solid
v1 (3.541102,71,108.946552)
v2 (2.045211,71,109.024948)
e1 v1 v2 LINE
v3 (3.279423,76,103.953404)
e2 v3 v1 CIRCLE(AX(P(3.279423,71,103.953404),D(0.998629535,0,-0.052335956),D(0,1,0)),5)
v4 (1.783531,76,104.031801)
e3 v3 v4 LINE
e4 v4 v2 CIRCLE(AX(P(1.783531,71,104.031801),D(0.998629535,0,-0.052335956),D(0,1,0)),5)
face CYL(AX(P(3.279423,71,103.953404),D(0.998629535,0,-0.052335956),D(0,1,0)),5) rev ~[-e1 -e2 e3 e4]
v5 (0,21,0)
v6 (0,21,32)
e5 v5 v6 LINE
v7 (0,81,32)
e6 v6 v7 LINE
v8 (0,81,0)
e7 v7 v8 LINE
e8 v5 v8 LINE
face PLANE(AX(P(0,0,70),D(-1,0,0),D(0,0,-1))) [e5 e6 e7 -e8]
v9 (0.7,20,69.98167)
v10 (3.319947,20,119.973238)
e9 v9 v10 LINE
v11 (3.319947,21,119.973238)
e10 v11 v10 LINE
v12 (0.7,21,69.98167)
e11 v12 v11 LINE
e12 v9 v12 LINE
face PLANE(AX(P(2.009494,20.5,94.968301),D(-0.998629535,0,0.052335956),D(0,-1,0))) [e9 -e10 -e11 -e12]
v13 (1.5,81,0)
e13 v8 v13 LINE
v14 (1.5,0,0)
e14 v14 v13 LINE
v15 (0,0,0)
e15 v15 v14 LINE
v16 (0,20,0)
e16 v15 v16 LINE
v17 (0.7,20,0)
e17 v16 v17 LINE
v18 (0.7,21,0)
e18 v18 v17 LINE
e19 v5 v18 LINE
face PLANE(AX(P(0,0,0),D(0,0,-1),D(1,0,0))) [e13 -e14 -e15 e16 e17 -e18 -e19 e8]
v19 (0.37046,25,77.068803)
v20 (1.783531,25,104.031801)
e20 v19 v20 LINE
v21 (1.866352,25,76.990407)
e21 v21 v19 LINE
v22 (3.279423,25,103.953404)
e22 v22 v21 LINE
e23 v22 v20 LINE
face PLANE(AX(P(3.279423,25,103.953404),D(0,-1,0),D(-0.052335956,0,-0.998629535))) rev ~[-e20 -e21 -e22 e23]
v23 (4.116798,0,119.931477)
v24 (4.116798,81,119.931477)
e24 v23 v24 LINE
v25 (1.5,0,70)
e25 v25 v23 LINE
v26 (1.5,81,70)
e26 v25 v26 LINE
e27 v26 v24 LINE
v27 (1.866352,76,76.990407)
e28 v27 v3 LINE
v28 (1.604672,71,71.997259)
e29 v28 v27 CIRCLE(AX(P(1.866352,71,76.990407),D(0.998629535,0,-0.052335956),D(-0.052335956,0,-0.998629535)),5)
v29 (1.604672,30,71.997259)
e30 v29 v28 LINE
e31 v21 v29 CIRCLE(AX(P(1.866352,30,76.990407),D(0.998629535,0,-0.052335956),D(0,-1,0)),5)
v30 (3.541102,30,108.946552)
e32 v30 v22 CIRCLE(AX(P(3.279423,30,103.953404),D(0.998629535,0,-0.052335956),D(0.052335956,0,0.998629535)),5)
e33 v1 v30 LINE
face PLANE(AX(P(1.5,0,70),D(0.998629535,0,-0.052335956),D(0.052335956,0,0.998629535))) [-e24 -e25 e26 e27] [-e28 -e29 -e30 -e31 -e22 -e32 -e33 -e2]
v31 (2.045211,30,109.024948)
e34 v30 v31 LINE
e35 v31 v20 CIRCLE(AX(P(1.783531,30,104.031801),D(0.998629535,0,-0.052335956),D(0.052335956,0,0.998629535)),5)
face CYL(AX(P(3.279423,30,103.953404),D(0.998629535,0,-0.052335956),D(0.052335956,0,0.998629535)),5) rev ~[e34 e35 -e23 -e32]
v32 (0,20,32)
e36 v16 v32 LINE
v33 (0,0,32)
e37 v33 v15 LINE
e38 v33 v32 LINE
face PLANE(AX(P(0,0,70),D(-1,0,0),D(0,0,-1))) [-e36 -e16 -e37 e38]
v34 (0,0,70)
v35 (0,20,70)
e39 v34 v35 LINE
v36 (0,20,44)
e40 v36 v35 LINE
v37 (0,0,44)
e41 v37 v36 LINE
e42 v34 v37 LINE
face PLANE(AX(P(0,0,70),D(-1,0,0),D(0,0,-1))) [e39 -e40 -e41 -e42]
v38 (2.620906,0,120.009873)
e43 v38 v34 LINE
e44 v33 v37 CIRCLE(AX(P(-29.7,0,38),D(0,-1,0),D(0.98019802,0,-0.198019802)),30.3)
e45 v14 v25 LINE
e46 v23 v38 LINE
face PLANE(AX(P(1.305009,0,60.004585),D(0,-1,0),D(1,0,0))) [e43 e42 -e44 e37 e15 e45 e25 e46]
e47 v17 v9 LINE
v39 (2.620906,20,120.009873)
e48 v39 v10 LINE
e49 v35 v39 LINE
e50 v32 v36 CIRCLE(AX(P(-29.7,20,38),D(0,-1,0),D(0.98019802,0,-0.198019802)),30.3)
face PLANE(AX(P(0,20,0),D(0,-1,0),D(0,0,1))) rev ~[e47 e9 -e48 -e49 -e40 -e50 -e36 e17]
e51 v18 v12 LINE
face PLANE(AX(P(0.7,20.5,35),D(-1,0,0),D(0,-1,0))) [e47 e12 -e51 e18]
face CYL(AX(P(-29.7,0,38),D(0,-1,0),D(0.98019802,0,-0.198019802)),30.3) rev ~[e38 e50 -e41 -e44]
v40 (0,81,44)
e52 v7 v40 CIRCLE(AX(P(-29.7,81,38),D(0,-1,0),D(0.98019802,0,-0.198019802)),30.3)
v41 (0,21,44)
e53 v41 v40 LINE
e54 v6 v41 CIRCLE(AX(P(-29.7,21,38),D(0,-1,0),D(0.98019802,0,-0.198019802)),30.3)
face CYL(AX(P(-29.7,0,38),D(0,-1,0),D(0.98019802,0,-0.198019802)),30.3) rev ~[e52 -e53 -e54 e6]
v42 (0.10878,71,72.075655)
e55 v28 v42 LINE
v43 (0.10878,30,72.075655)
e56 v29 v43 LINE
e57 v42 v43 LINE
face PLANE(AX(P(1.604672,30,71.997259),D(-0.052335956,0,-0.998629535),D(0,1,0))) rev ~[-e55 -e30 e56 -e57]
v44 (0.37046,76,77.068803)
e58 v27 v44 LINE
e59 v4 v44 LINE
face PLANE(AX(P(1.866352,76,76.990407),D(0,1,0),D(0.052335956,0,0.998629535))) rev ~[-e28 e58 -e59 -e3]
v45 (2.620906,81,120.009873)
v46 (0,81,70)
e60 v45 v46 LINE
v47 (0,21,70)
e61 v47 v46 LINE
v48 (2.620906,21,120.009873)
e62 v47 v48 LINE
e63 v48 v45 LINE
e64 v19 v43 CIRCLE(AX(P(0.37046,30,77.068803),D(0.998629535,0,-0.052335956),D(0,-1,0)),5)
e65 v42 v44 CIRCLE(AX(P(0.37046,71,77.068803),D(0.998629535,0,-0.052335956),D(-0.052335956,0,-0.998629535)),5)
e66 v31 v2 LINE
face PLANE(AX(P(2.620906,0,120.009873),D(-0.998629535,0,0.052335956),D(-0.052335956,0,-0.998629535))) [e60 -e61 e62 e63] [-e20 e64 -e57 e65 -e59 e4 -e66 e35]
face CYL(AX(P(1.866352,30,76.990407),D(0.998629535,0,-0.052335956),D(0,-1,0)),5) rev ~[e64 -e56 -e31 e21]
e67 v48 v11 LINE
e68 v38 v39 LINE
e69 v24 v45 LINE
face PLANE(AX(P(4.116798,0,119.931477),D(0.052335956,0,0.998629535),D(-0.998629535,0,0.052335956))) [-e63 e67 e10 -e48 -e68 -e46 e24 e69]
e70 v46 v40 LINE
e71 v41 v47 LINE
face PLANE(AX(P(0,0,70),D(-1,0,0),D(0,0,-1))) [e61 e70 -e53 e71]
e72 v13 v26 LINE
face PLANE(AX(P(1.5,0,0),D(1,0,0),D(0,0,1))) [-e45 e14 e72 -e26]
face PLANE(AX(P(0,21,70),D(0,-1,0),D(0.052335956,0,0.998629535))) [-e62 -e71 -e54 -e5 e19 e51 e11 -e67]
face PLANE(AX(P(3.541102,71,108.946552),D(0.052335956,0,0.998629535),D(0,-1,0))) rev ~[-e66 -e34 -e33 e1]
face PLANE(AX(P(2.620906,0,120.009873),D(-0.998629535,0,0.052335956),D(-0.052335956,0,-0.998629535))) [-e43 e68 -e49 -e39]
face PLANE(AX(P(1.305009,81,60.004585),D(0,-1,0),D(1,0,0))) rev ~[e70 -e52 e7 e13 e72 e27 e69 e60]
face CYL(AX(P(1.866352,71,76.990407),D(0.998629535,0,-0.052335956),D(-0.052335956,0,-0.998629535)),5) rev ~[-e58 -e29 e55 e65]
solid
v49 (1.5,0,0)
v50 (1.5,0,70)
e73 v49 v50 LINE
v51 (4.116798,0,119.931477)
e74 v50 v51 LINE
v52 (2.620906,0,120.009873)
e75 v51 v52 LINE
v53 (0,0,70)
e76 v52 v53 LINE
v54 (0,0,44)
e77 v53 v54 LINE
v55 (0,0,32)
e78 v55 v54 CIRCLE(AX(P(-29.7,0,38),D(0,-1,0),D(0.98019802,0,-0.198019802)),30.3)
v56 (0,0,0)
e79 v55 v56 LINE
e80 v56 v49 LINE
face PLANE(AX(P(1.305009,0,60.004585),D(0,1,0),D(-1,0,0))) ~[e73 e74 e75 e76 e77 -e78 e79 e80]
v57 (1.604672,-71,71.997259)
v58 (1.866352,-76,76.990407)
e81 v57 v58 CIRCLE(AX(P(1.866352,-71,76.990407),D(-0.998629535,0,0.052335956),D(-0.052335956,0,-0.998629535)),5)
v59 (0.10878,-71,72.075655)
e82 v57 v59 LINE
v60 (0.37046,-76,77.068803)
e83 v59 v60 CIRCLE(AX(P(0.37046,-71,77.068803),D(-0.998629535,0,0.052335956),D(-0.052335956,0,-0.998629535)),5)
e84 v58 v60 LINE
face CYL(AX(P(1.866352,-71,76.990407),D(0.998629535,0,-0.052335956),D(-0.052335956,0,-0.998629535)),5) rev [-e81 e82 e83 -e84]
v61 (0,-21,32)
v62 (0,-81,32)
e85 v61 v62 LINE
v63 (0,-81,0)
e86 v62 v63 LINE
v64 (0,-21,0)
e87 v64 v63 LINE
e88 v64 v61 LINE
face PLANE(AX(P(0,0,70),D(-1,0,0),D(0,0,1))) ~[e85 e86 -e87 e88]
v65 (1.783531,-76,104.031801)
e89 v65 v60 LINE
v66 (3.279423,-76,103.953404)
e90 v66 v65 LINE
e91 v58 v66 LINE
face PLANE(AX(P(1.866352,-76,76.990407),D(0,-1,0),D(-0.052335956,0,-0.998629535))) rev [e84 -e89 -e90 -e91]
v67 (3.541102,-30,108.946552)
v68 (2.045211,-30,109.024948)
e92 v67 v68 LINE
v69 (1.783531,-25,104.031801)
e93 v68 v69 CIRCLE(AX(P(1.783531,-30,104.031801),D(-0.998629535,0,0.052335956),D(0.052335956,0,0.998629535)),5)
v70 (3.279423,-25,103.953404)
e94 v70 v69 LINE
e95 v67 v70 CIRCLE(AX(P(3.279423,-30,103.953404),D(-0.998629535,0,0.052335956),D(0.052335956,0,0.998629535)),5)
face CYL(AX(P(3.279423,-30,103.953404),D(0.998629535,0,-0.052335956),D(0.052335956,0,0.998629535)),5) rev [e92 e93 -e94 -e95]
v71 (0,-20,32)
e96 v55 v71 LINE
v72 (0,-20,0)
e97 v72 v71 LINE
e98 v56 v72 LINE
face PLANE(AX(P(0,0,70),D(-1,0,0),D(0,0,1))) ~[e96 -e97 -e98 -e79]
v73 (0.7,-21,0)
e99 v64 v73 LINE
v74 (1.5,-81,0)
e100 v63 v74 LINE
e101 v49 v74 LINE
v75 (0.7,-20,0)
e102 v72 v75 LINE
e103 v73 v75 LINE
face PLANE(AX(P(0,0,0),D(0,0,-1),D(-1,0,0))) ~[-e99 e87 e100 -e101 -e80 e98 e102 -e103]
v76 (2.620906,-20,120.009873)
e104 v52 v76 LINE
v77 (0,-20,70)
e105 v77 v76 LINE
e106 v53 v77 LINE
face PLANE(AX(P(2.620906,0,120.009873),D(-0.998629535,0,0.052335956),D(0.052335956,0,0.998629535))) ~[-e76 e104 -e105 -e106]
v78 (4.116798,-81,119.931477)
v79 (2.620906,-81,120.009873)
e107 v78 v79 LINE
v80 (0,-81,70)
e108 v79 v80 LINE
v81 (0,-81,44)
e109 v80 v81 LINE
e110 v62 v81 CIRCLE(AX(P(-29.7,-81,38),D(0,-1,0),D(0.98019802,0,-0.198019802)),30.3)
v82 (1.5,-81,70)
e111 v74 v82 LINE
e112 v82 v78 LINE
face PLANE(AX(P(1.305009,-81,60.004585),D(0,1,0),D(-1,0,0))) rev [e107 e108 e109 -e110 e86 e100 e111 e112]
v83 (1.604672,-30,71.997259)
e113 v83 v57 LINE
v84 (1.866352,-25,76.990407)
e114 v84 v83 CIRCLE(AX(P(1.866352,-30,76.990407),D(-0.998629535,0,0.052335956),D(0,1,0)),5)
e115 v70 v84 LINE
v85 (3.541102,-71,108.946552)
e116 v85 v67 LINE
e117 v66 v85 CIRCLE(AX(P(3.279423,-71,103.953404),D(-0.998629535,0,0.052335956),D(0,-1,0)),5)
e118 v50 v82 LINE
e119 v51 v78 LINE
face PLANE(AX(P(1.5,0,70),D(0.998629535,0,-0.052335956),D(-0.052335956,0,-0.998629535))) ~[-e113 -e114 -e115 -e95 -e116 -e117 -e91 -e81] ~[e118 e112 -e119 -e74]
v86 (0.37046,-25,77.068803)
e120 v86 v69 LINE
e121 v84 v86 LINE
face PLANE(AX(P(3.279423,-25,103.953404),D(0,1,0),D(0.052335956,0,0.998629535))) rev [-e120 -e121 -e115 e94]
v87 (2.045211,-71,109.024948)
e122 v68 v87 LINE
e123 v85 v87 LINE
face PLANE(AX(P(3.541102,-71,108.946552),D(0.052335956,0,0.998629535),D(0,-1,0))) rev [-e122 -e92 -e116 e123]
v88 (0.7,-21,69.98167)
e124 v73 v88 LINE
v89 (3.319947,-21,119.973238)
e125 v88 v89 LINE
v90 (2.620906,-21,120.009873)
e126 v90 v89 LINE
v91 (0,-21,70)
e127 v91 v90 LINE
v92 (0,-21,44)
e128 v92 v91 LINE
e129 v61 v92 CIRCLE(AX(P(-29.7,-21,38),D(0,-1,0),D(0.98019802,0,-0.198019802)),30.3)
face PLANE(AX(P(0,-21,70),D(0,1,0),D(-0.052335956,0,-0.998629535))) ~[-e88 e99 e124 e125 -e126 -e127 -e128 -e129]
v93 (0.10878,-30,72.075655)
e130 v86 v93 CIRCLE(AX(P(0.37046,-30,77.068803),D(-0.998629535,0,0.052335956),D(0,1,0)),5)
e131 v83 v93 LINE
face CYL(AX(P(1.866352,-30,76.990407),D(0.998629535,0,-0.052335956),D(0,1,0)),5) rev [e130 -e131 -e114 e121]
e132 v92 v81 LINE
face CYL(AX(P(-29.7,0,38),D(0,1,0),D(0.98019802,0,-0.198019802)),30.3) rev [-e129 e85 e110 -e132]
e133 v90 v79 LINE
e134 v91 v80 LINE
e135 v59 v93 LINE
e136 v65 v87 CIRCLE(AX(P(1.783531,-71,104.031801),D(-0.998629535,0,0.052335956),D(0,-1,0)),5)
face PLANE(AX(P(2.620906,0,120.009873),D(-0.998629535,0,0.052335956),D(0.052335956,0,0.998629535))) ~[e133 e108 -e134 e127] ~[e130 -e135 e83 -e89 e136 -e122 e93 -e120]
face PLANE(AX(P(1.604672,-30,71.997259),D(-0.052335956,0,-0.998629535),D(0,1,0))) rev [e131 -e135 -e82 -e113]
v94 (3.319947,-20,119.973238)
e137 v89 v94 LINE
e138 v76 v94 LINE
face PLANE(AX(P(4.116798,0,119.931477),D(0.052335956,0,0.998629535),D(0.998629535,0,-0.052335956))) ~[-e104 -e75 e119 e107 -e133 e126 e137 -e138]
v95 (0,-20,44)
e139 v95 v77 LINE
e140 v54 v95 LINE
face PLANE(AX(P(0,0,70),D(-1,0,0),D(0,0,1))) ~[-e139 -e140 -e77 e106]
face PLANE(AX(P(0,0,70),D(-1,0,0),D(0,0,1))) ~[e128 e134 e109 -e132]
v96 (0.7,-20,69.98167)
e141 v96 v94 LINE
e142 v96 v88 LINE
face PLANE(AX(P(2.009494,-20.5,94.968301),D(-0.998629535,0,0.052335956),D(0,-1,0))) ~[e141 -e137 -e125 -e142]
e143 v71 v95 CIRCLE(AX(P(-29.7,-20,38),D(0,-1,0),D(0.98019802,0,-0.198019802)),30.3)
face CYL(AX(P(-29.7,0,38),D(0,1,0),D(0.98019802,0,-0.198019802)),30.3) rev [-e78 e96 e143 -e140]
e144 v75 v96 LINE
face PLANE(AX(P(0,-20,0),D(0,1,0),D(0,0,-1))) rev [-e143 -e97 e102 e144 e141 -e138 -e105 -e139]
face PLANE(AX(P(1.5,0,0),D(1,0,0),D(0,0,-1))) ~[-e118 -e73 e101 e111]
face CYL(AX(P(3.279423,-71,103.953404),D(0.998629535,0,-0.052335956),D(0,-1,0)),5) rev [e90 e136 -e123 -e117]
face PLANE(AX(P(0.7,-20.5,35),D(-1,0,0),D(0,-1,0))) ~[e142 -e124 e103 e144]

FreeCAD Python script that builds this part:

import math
import FreeCAD as App
import Part
import Sketcher
from FreeCAD import Vector
Q = App.Units.Quantity

doc = App.newDocument("Part")
body = doc.addObject("PartDesign::Body", "Body")

sketch1 = body.newObject("Sketcher::SketchObject", "Sketch")
sketch1.AttachmentSupport = (doc.getObject("XZ_Plane"), [""])
sketch1.MapMode = "FlatFace"
sketch1.addGeometry([
    Part.LineSegment(Vector(0, 70, 0), Vector(0, 0, 0)),
    Part.LineSegment(Vector(0, 0, 0), Vector(1.5, 0, 0)),
    Part.LineSegment(Vector(1.5, 0, 0), Vector(1.5, 70, 0)),
    Part.LineSegment(Vector(1.5, 70, 0), Vector(4.1, 119.9, 0)),
    Part.LineSegment(Vector(4.1, 119.9, 0), Vector(2.6, 120, 0)),
    Part.LineSegment(Vector(2.6, 120, 0), Vector(0, 70, 0)),
], False)
sketch1.addConstraint([
    Sketcher.Constraint("Coincident", 0, 2, 1, 1),
    Sketcher.Constraint("Coincident", 1, 2, 2, 1),
    Sketcher.Constraint("Coincident", 2, 2, 3, 1),
    Sketcher.Constraint("Coincident", 3, 2, 4, 1),
    Sketcher.Constraint("Coincident", 4, 2, 5, 1),
    Sketcher.Constraint("Coincident", 5, 2, 0, 1),
    Sketcher.Constraint("Vertical", 0),
    Sketcher.Constraint("Horizontal", 1),
    Sketcher.Constraint("Vertical", 2),
    Sketcher.Constraint("Coincident", 0, 2, -1, 1),
    Sketcher.Constraint("Perpendicular", 3, 4),
    Sketcher.Constraint("Perpendicular", 4, 5),
    Sketcher.Constraint("Horizontal", 2, 2, 5, 2),
    Sketcher.Constraint("DistanceY", 0, 2, 0, 1, 70.0),
    Sketcher.Constraint("Angle", 3, Q("87 deg")),
    Sketcher.Constraint("Distance", 3, 50.0),
    Sketcher.Constraint("DistanceX", 1, 1, 1, 2, 1.5),
])
pad1 = body.newObject("PartDesign::Pad", "Pad")
pad1.Profile = sketch1
pad1.Length = 81
pad1.Reversed = True

sketch2 = body.newObject("Sketcher::SketchObject", "Sketch001")
sketch2.Placement = App.Placement(Vector(-2.162605, 0, 0.113337), App.Rotation(Vector(0, 1, 0), Vector(0.052335956, 0, 0.998629535), Vector(0.998629535, 0, -0.052335956), "ZXY"))
sketch2.addGeometry([
    Part.LineSegment(Vector(71, 109, 0), Vector(30, 109, 0)),
    Part.ArcOfCircle(Part.Circle(Vector(30, 104, 0), Vector(0, 0, 1), 5), math.radians(90), math.radians(180)),
    Part.LineSegment(Vector(25, 104, 0), Vector(25, 77, 0)),
    Part.ArcOfCircle(Part.Circle(Vector(30, 77, 0), Vector(0, 0, 1), 5), math.radians(180), math.radians(270)),
    Part.LineSegment(Vector(30, 72, 0), Vector(71, 72, 0)),
    Part.ArcOfCircle(Part.Circle(Vector(71, 77, 0), Vector(0, 0, 1), 5), math.radians(-90), math.radians(0)),
    Part.LineSegment(Vector(76, 77, 0), Vector(76, 104, 0)),
    Part.ArcOfCircle(Part.Circle(Vector(71, 104, 0), Vector(0, 0, 1), 5), math.radians(0), math.radians(90)),
], False)
sketch2.addConstraint([
    Sketcher.Constraint("Tangent", 0, 2, 1, 1),
    Sketcher.Constraint("Tangent", 1, 2, 2, 1),
    Sketcher.Constraint("Tangent", 2, 2, 3, 1),
    Sketcher.Constraint("Tangent", 3, 2, 4, 1),
    Sketcher.Constraint("Tangent", 4, 2, 5, 1),
    Sketcher.Constraint("Tangent", 5, 2, 6, 1),
    Sketcher.Constraint("Tangent", 6, 2, 7, 1),
    Sketcher.Constraint("Tangent", 7, 2, 0, 1),
    Sketcher.Constraint("Horizontal", 0),
    Sketcher.Constraint("Vertical", 2),
    Sketcher.Constraint("Horizontal", 4),
    Sketcher.Constraint("Vertical", 6),
    Sketcher.Constraint("Equal", 1, 3),
    Sketcher.Constraint("Equal", 3, 5),
    Sketcher.Constraint("Equal", 5, 7),
    Sketcher.Constraint("Radius", 1, 5.0),
    Sketcher.Constraint("DistanceX", 0, 2, 0, 1, 41.0),
    Sketcher.Constraint("DistanceY", 2, 2, 2, 1, 27.0),
    Sketcher.Constraint("DistanceX", -1, 1, 1, 3, 30.0),
    Sketcher.Constraint("DistanceY", -1, 1, 1, 3, 103.982571),
])
pocket1 = body.newObject("PartDesign::Pocket", "Pocket")
pocket1.Profile = sketch2
pocket1.Type = "ThroughAll"

sketch3 = body.newObject("Sketcher::SketchObject", "Sketch002")
sketch3.AttachmentSupport = (doc.getObject("XZ_Plane"), [""])
sketch3.MapMode = "FlatFace"
sketch3.addGeometry([
    Part.ArcOfCircle(Part.Circle(Vector(-30, 38, 0), Vector(0, 0, 1), 30), math.radians(-11), math.radians(11)),
    Part.LineSegment(Vector(0, 44, 0), Vector(0, 32, 0)),
], False)
sketch3.addConstraint([
    Sketcher.Constraint("Coincident", 0, 1, 1, 2),
    Sketcher.Constraint("Coincident", 1, 1, 0, 2),
    Sketcher.Constraint("Vertical", 1),
    Sketcher.Constraint("PointOnObject", 0, 1, -2),
    Sketcher.Constraint("Radius", 0, 30.3),
    Sketcher.Constraint("DistanceY", 1, 2, 1, 1, 12.0),
    Sketcher.Constraint("DistanceY", -1, 1, 0, 3, 38.0),
])
pocket2 = body.newObject("PartDesign::Pocket", "Pocket001")
pocket2.Profile = sketch3
pocket2.Type = "ThroughAll"

sketch4 = body.newObject("Sketcher::SketchObject", "Sketch003")
sketch4.AttachmentSupport = (doc.getObject("YZ_Plane"), [""])
sketch4.MapMode = "FlatFace"
sketch4.addGeometry([
    Part.LineSegment(Vector(21, 70, 0), Vector(21, 0, 0)),
    Part.LineSegment(Vector(21, 0, 0), Vector(20, 0, 0)),
    Part.LineSegment(Vector(20, 0, 0), Vector(20, 70, 0)),
    Part.LineSegment(Vector(20, 70, 0), Vector(21, 70, 0)),
], False)
sketch4.addConstraint([
    Sketcher.Constraint("Coincident", 0, 2, 1, 1),
    Sketcher.Constraint("Coincident", 1, 2, 2, 1),
    Sketcher.Constraint("Coincident", 2, 2, 3, 1),
    Sketcher.Constraint("Coincident", 3, 2, 0, 1),
    Sketcher.Constraint("Vertical", 0),
    Sketcher.Constraint("Horizontal", 1),
    Sketcher.Constraint("Vertical", 2),
    Sketcher.Constraint("Horizontal", 3),
    Sketcher.Constraint("PointOnObject", 0, 2, -1),
    Sketcher.Constraint("DistanceX", 1, 2, 1, 1, 1.0),
    Sketcher.Constraint("DistanceY", 0, 2, 0, 1, 70.0),
    Sketcher.Constraint("DistanceX", -1, 1, 0, 2, 21.0),
])
pocket3 = body.newObject("PartDesign::Pocket", "Pocket002")
pocket3.Profile = sketch4
pocket3.Length = 0.7
pocket3.Reversed = True

sketch5 = body.newObject("Sketcher::SketchObject", "Sketch004")
sketch5.Placement = App.Placement(Vector(-3.658496, 0, 0.191734), App.Rotation(Vector(0, -1, 0), Vector(0.052335956, 0, 0.998629535), Vector(-0.998629535, 0, 0.052335956), "ZXY"))
sketch5.addGeometry([
    Part.LineSegment(Vector(-21, 120, 0), Vector(-21, 69.9, 0)),
    Part.LineSegment(Vector(-21, 69.9, 0), Vector(-20, 69.9, 0)),
    Part.LineSegment(Vector(-20, 69.9, 0), Vector(-20, 120, 0)),
    Part.LineSegment(Vector(-20, 120, 0), Vector(-21, 120, 0)),
], False)
sketch5.addConstraint([
    Sketcher.Constraint("Coincident", 0, 2, 1, 1),
    Sketcher.Constraint("Coincident", 1, 2, 2, 1),
    Sketcher.Constraint("Coincident", 2, 2, 3, 1),
    Sketcher.Constraint("Coincident", 3, 2, 0, 1),
    Sketcher.Constraint("Vertical", 0),
    Sketcher.Constraint("Horizontal", 1),
    Sketcher.Constraint("Vertical", 2),
    Sketcher.Constraint("Horizontal", 3),
    Sketcher.Constraint("DistanceX", 1, 1, 1, 2, 1.0),
    Sketcher.Constraint("DistanceX", 0, 2, -1, 1, 21.0),
    Sketcher.Constraint("DistanceY", 0, 2, 0, 1, 50.078504),
    Sketcher.Constraint("DistanceY", -1, 1, 2, 2, 119.982571),
])
pocket4 = body.newObject("PartDesign::Pocket", "Pocket003")
pocket4.Profile = sketch5
pocket4.Length = 0.7
body2 = doc.addObject("PartDesign::Body", "Body001")
doc.recompute()

mirroring = doc.addObject("Part::Mirroring", "Mirroring")
mirroring.Source = body
mirroring.Base = Vector(0, 0, 0)
mirroring.Normal = Vector(0, -1, 0)
body2.BaseFeature = mirroring
doc.recompute()
mirroring.Visibility = False

doc.recompute()
